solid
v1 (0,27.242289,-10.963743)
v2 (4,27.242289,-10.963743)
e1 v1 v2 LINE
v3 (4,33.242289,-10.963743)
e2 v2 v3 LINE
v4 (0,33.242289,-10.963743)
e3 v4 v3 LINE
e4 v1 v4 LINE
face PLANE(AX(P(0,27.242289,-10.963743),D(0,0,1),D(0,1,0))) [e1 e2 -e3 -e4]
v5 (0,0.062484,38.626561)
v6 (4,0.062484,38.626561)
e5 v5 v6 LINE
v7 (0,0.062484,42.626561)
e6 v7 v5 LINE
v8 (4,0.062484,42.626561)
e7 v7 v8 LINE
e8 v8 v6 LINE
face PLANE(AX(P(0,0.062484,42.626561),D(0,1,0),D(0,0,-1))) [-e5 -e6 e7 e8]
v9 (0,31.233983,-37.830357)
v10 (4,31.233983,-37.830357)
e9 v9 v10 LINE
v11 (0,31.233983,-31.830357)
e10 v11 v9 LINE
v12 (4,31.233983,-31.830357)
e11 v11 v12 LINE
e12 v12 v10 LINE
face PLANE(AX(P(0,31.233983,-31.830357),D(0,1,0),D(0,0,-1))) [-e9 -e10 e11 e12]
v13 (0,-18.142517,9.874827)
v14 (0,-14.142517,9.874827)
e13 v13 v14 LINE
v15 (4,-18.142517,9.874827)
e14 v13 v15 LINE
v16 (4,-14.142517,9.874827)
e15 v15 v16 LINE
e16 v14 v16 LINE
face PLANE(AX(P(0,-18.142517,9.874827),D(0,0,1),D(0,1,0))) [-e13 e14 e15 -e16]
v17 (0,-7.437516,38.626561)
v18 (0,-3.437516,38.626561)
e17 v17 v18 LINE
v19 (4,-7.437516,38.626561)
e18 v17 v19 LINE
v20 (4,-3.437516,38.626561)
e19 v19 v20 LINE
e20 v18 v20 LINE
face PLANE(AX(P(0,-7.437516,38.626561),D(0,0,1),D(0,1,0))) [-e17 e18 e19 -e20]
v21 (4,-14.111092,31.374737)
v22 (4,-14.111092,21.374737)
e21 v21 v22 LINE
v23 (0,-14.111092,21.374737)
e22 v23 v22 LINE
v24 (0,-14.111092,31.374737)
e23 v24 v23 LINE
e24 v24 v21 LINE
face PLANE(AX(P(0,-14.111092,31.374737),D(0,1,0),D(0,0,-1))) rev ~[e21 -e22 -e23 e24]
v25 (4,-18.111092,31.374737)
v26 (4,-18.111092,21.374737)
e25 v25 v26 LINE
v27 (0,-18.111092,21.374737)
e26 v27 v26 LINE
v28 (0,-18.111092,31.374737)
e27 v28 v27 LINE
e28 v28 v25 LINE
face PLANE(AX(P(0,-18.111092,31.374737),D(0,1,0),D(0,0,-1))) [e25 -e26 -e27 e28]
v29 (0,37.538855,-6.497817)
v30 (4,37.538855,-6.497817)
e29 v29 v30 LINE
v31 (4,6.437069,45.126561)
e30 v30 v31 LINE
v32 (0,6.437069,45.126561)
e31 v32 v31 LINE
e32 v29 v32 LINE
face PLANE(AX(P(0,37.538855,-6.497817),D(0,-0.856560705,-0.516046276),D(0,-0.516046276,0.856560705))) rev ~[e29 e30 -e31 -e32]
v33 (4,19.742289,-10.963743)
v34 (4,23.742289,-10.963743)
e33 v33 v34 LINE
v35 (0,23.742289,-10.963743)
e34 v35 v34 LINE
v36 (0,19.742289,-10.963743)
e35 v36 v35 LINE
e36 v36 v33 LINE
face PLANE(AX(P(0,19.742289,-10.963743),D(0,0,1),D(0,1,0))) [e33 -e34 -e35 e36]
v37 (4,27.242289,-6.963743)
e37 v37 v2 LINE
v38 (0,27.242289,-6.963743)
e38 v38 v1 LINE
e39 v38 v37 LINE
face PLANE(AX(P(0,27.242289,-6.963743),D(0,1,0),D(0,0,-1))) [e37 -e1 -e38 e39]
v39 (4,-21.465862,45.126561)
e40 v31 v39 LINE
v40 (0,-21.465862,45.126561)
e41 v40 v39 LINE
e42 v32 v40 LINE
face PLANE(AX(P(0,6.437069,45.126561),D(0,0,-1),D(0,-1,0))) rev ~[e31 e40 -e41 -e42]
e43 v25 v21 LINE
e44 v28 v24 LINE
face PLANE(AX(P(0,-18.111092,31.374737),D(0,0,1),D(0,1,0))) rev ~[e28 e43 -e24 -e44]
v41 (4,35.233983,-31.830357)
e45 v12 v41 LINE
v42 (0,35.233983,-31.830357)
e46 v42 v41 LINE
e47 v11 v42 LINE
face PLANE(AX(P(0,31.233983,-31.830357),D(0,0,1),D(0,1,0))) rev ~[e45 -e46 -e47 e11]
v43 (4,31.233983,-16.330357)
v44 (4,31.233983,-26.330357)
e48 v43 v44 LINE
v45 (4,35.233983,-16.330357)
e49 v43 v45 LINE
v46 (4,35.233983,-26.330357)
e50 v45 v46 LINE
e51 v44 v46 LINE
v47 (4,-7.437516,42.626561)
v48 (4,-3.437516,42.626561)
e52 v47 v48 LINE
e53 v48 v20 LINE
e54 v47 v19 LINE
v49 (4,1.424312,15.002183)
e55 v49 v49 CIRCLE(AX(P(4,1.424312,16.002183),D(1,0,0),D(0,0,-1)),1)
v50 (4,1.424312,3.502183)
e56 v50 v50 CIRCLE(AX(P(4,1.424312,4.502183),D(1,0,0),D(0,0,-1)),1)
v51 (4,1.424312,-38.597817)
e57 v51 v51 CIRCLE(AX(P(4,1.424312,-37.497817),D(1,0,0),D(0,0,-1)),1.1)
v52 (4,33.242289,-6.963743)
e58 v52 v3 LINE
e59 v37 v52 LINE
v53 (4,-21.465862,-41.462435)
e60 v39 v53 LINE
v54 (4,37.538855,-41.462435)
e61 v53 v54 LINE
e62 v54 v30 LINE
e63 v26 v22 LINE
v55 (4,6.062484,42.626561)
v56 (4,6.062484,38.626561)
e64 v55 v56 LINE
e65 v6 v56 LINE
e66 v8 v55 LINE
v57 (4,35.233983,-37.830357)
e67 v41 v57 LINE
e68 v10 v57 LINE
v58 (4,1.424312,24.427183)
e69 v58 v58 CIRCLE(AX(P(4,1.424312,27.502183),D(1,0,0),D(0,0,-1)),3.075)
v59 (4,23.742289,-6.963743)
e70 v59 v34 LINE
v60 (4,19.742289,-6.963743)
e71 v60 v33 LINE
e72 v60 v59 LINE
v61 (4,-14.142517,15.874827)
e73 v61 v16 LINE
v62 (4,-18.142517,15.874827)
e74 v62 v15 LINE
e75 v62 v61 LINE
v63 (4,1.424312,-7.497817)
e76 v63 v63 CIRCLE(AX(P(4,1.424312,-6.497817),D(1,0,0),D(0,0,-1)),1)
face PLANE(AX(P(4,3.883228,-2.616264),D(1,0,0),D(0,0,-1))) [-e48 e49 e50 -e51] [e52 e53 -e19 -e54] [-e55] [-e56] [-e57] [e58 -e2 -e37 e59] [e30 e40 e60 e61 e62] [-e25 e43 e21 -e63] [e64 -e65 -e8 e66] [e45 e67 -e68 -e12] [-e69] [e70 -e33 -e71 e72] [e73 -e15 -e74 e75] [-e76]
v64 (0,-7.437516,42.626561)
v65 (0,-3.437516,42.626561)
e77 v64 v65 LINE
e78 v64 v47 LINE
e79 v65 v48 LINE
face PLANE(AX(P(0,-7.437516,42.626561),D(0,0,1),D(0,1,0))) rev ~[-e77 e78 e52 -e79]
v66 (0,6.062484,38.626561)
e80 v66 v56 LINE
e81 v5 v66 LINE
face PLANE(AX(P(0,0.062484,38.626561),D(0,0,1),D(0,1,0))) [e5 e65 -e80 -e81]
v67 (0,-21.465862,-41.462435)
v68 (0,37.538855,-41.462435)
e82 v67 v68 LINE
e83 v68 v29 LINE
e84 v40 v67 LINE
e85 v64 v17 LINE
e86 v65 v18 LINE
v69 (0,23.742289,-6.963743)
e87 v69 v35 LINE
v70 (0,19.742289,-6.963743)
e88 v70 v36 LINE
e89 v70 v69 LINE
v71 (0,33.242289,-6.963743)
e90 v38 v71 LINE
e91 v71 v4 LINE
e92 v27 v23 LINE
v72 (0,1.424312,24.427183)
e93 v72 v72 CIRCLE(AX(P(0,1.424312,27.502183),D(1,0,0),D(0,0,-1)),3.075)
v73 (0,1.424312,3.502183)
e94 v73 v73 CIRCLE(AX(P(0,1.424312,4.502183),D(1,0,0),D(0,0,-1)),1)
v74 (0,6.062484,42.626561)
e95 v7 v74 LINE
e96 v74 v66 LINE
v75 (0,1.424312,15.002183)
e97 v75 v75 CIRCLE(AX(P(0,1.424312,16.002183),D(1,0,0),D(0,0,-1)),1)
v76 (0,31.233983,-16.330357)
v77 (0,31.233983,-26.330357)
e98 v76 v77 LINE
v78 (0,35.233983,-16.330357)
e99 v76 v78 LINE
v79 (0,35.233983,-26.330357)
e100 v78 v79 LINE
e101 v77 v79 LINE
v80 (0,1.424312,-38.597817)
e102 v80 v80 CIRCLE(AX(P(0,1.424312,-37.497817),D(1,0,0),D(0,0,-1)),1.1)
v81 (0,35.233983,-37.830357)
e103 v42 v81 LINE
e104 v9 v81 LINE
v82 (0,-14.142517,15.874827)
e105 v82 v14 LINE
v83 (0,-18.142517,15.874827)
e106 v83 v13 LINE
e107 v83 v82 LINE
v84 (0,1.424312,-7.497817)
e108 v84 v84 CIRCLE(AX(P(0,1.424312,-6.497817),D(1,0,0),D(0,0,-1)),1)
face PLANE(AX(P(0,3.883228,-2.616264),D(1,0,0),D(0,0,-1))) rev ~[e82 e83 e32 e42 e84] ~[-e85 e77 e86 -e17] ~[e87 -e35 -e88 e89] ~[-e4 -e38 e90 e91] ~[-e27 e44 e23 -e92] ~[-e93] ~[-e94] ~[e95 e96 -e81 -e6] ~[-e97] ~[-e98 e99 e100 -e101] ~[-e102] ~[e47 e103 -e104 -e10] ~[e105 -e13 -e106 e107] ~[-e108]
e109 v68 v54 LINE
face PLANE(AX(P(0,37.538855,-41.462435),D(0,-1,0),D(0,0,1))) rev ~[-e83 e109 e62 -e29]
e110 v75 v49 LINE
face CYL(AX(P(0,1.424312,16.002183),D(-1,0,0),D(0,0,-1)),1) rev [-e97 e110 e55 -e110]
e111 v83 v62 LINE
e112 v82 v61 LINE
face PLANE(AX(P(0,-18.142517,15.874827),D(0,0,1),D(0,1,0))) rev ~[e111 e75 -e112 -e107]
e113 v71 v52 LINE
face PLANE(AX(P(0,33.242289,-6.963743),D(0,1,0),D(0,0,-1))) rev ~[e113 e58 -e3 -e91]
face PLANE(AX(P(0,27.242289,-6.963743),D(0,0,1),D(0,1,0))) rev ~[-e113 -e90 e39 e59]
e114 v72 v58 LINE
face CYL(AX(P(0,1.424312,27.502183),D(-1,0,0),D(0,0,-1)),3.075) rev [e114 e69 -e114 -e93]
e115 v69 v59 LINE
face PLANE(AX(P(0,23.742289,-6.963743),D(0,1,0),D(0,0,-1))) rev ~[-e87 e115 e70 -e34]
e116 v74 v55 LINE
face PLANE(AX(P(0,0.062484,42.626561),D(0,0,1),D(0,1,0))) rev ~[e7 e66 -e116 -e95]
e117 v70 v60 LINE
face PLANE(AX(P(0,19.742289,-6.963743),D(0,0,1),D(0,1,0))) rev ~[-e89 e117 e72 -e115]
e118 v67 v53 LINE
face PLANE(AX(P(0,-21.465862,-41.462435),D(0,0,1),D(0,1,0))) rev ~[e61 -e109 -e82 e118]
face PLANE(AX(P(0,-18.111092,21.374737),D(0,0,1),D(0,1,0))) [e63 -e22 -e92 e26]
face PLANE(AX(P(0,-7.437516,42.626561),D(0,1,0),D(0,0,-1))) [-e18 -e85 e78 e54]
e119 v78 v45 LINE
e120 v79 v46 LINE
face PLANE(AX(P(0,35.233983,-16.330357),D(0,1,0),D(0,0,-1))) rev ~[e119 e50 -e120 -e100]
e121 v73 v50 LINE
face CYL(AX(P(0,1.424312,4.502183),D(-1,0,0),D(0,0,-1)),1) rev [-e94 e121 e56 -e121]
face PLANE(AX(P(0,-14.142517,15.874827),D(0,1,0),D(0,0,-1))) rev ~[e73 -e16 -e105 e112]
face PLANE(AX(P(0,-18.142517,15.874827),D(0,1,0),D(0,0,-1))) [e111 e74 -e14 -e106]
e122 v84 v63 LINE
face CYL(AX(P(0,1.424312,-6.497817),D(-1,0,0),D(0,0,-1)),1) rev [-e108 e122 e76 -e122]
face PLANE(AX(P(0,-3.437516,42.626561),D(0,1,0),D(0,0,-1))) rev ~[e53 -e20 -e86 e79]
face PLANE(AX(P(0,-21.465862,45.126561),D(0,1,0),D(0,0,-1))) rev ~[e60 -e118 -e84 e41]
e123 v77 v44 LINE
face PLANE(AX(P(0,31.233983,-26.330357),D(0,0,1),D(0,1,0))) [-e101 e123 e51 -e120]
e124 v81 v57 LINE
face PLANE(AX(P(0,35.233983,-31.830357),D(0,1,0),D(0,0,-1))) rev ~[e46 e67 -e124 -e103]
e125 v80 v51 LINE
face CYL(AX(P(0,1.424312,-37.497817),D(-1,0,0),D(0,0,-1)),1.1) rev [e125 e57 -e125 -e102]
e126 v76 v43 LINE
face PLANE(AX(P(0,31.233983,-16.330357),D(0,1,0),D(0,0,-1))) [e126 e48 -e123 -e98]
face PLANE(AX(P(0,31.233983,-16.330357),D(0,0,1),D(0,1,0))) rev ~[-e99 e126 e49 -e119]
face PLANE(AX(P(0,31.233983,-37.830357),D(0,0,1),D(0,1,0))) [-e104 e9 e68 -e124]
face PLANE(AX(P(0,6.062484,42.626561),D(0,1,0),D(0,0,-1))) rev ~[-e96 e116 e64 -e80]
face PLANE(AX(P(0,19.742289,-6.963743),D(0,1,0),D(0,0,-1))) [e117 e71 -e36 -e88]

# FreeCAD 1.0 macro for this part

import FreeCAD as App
import Part
import Sketcher
from FreeCAD import Vector
Q = App.Units.Quantity

doc = App.newDocument("Part")
body = doc.addObject("PartDesign::Body", "Body")

sketch1 = body.newObject("Sketcher::SketchObject", "Sketch")
sketch1.AttachmentSupport = (doc.getObject("YZ_Plane"), [""])
sketch1.MapMode = "FlatFace"
sketch1.addGeometry([
    Part.LineSegment(Vector(-21.5, 45.1, 0), Vector(-21.5, -41.5, 0)),
    Part.LineSegment(Vector(-21.5, -41.5, 0), Vector(37.5, -41.5, 0)),
    Part.LineSegment(Vector(37.5, -41.5, 0), Vector(37.5, -6.5, 0)),
    Part.LineSegment(Vector(37.5, -6.5, 0), Vector(6.4, 45.1, 0)),
    Part.LineSegment(Vector(6.4, 45.1, 0), Vector(-21.5, 45.1, 0)),
    Part.LineSegment(Vector(-18.1, 21.4, 0), Vector(-18.1, 31.4, 0)),
    Part.LineSegment(Vector(-18.1, 31.4, 0), Vector(-14.1, 31.4, 0)),
    Part.LineSegment(Vector(-14.1, 31.4, 0), Vector(-14.1, 21.4, 0)),
    Part.LineSegment(Vector(-14.1, 21.4, 0), Vector(-18.1, 21.4, 0)),
    Part.LineSegment(Vector(-7.4, 38.6, 0), Vector(-7.4, 42.6, 0)),
    Part.LineSegment(Vector(-7.4, 42.6, 0), Vector(-3.4, 42.6, 0)),
    Part.LineSegment(Vector(-3.4, 42.6, 0), Vector(-3.4, 38.6, 0)),
    Part.LineSegment(Vector(-3.4, 38.6, 0), Vector(-7.4, 38.6, 0)),
    Part.LineSegment(Vector(-18.1, 9.9, 0), Vector(-18.1, 15.9, 0)),
    Part.LineSegment(Vector(-18.1, 15.9, 0), Vector(-14.1, 15.9, 0)),
    Part.LineSegment(Vector(-14.1, 15.9, 0), Vector(-14.1, 9.9, 0)),
    Part.LineSegment(Vector(-14.1, 9.9, 0), Vector(-18.1, 9.9, 0)),
    Part.Circle(Vector(1.4, 27.5, 0), Vector(0, 0, 1), 3.1),
    Part.LineSegment(Vector(0.1, 38.6, 0), Vector(0.1, 42.6, 0)),
    Part.LineSegment(Vector(0.1, 42.6, 0), Vector(6.1, 42.6, 0)),
    Part.LineSegment(Vector(6.1, 42.6, 0), Vector(6.1, 38.6, 0)),
    Part.LineSegment(Vector(6.1, 38.6, 0), Vector(0.1, 38.6, 0)),
    Part.Circle(Vector(1.4, 16, 0), Vector(0, 0, 1), 1),
    Part.Circle(Vector(1.4, 4.5, 0), Vector(0, 0, 1), 1),
    Part.Circle(Vector(1.4, -6.5, 0), Vector(0, 0, 1), 1),
    Part.Circle(Vector(1.4, -37.5, 0), Vector(0, 0, 1), 1.1),
    Part.LineSegment(Vector(19.7, -11, 0), Vector(19.7, -7, 0)),
    Part.LineSegment(Vector(19.7, -7, 0), Vector(23.7, -7, 0)),
    Part.LineSegment(Vector(23.7, -7, 0), Vector(23.7, -11, 0)),
    Part.LineSegment(Vector(23.7, -11, 0), Vector(19.7, -11, 0)),
    Part.LineSegment(Vector(27.2, -11, 0), Vector(27.2, -7, 0)),
    Part.LineSegment(Vector(27.2, -7, 0), Vector(33.2, -7, 0)),
    Part.LineSegment(Vector(33.2, -7, 0), Vector(33.2, -11, 0)),
    Part.LineSegment(Vector(33.2, -11, 0), Vector(27.2, -11, 0)),
    Part.LineSegment(Vector(31.2, -26.3, 0), Vector(31.2, -16.3, 0)),
    Part.LineSegment(Vector(31.2, -16.3, 0), Vector(35.2, -16.3, 0)),
    Part.LineSegment(Vector(35.2, -16.3, 0), Vector(35.2, -26.3, 0)),
    Part.LineSegment(Vector(35.2, -26.3, 0), Vector(31.2, -26.3, 0)),
    Part.LineSegment(Vector(31.2, -37.8, 0), Vector(31.2, -31.8, 0)),
    Part.LineSegment(Vector(31.2, -31.8, 0), Vector(35.2, -31.8, 0)),
    Part.LineSegment(Vector(35.2, -31.8, 0), Vector(35.2, -37.8, 0)),
    Part.LineSegment(Vector(35.2, -37.8, 0), Vector(31.2, -37.8, 0)),
], False)
sketch1.addConstraint([
    Sketcher.Constraint("Coincident", 0, 2, 1, 1),
    Sketcher.Constraint("Coincident", 1, 2, 2, 1),
    Sketcher.Constraint("Coincident", 2, 2, 3, 1),
    Sketcher.Constraint("Coincident", 3, 2, 4, 1),
    Sketcher.Constraint("Coincident", 4, 2, 0, 1),
    Sketcher.Constraint("Coincident", 5, 2, 6, 1),
    Sketcher.Constraint("Coincident", 6, 2, 7, 1),
    Sketcher.Constraint("Coincident", 7, 2, 8, 1),
    Sketcher.Constraint("Coincident", 8, 2, 5, 1),
    Sketcher.Constraint("Coincident", 9, 2, 10, 1),
    Sketcher.Constraint("Coincident", 10, 2, 11, 1),
    Sketcher.Constraint("Coincident", 11, 2, 12, 1),
    Sketcher.Constraint("Coincident", 12, 2, 9, 1),
    Sketcher.Constraint("Coincident", 13, 2, 14, 1),
    Sketcher.Constraint("Coincident", 14, 2, 15, 1),
    Sketcher.Constraint("Coincident", 15, 2, 16, 1),
    Sketcher.Constraint("Coincident", 16, 2, 13, 1),
    Sketcher.Constraint("Coincident", 18, 2, 19, 1),
    Sketcher.Constraint("Coincident", 19, 2, 20, 1),
    Sketcher.Constraint("Coincident", 20, 2, 21, 1),
    Sketcher.Constraint("Coincident", 21, 2, 18, 1),
    Sketcher.Constraint("Coincident", 26, 2, 27, 1),
    Sketcher.Constraint("Coincident", 27, 2, 28, 1),
    Sketcher.Constraint("Coincident", 28, 2, 29, 1),
    Sketcher.Constraint("Coincident", 29, 2, 26, 1),
    Sketcher.Constraint("Coincident", 30, 2, 31, 1),
    Sketcher.Constraint("Coincident", 31, 2, 32, 1),
    Sketcher.Constraint("Coincident", 32, 2, 33, 1),
    Sketcher.Constraint("Coincident", 33, 2, 30, 1),
    Sketcher.Constraint("Coincident", 34, 2, 35, 1),
    Sketcher.Constraint("Coincident", 35, 2, 36, 1),
    Sketcher.Constraint("Coincident", 36, 2, 37, 1),
    Sketcher.Constraint("Coincident", 37, 2, 34, 1),
    Sketcher.Constraint("Coincident", 38, 2, 39, 1),
    Sketcher.Constraint("Coincident", 39, 2, 40, 1),
    Sketcher.Constraint("Coincident", 40, 2, 41, 1),
    Sketcher.Constraint("Coincident", 41, 2, 38, 1),
    Sketcher.Constraint("Vertical", 0),
    Sketcher.Constraint("Horizontal", 1),
    Sketcher.Constraint("Vertical", 2),
    Sketcher.Constraint("Horizontal", 4),
    Sketcher.Constraint("Vertical", 5),
    Sketcher.Constraint("Horizontal", 6),
    Sketcher.Constraint("Vertical", 7),
    Sketcher.Constraint("Horizontal", 8),
    Sketcher.Constraint("Vertical", 9),
    Sketcher.Constraint("Horizontal", 10),
    Sketcher.Constraint("Vertical", 11),
    Sketcher.Constraint("Horizontal", 12),
    Sketcher.Constraint("Vertical", 13),
    Sketcher.Constraint("Horizontal", 14),
    Sketcher.Constraint("Vertical", 15),
    Sketcher.Constraint("Horizontal", 16),
    Sketcher.Constraint("Vertical", 18),
    Sketcher.Constraint("Horizontal", 19),
    Sketcher.Constraint("Vertical", 20),
    Sketcher.Constraint("Horizontal", 21),
    Sketcher.Constraint("Vertical", 26),
    Sketcher.Constraint("Horizontal", 27),
    Sketcher.Constraint("Vertical", 28),
    Sketcher.Constraint("Horizontal", 29),
    Sketcher.Constraint("Vertical", 30),
    Sketcher.Constraint("Horizontal", 31),
    Sketcher.Constraint("Vertical", 32),
    Sketcher.Constraint("Horizontal", 33),
    Sketcher.Constraint("Vertical", 34),
    Sketcher.Constraint("Horizontal", 35),
    Sketcher.Constraint("Vertical", 36),
    Sketcher.Constraint("Horizontal", 37),
    Sketcher.Constraint("Vertical", 38),
    Sketcher.Constraint("Horizontal", 39),
    Sketcher.Constraint("Vertical", 40),
    Sketcher.Constraint("Horizontal", 41),
    Sketcher.Constraint("Equal", 22, 23),
    Sketcher.Constraint("Equal", 23, 24),
    Sketcher.Constraint("Horizontal", 24, 3, 2, 2),
    Sketcher.Constraint("Horizontal", 10, 2, 18, 2),
    Sketcher.Constraint("Horizontal", 12, 2, 20, 2),
    Sketcher.Constraint("Horizontal", 27, 2, 30, 2),
    Sketcher.Constraint("Horizontal", 29, 2, 32, 2),
    Sketcher.Constraint("Vertical", 17, 3, 22, 3),
    Sketcher.Constraint("Vertical", 22, 3, 23, 3),
    Sketcher.Constraint("Vertical", 23, 3, 24, 3),
    Sketcher.Constraint("Vertical", 24, 3, 25, 3),
    Sketcher.Constraint("Vertical", 37, 2, 38, 2),
    Sketcher.Constraint("Vertical", 36, 2, 39, 2),
    Sketcher.Constraint("Equal", 8, 10),
    Sketcher.Constraint("Equal", 12, 14),
    Sketcher.Constraint("Equal", 16, 27),
    Sketcher.Constraint("Equal", 21, 31),
    Sketcher.Constraint("Equal", 29, 35),
    Sketcher.Constraint("Equal", 41, 9),
    Sketcher.Constraint("Equal", 33, 13),
    Sketcher.Constraint("Equal", 20, 26),
    Sketcher.Constraint("Equal", 7, 34),
    Sketcher.Constraint("Equal", 15, 38),
    Sketcher.Constraint("Diameter", 22, Q("2 mm")),
    Sketcher.Constraint("Diameter", 25, Q("2.2 mm")),
    Sketcher.Constraint("Diameter", 17, Q("6.15 mm")),
    Sketcher.Constraint("DistanceX", 6, 1, 6, 2, Q("4 mm")),
    Sketcher.Constraint("DistanceX", 19, 1, 19, 2, Q("6 mm")),
    Sketcher.Constraint("DistanceY", 5, 1, 5, 2, Q("10 mm")),
    Sketcher.Constraint("DistanceY", 23, 3, 17, 3, Q("23 mm")),
    Sketcher.Constraint("DistanceY", 24, 3, 23, 3, Q("11 mm")),
    Sketcher.Constraint("DistanceY", 25, 3, 24, 3, Q("31 mm")),
    Sketcher.Constraint("DistanceY", 22, 3, 17, 3, Q("11.5 mm")),
    Sketcher.Constraint("DistanceY", 9, 2, 3, 2, Q("2.5 mm")),
    Sketcher.Constraint("DistanceX", 10, 2, 18, 2, Q("3.5 mm")),
    Sketcher.Constraint("DistanceX", 27, 2, 30, 2, Q("3.5 mm")),
    Sketcher.Constraint("DistanceY", 38, 2, 37, 2, Q("5.5 mm")),
    Sketcher.Constraint("DistanceX", 4, 2, 4, 1, Q("27.902931 mm")),
    Sketcher.Constraint("DistanceY", 2, 1, 2, 2, Q("34.964618 mm")),
    Sketcher.Constraint("DistanceX", 1, 1, 1, 2, Q("59.004717 mm")),
    Sketcher.Constraint("DistanceY", 0, 2, 0, 1, Q("86.588996 mm")),
    Sketcher.Constraint("DistanceX", -1, 1, 17, 3, Q("1.424312 mm")),
    Sketcher.Constraint("DistanceX", -1, 1, 3, 2, Q("6.437069 mm")),
    Sketcher.Constraint("DistanceY", -1, 1, 3, 2, Q("45.126561 mm")),
    Sketcher.Constraint("DistanceX", 5, 2, -1, 1, Q("18.111092 mm")),
    Sketcher.Constraint("DistanceX", -1, 1, 26, 2, Q("19.742289 mm")),
    Sketcher.Constraint("DistanceY", 13, 2, 8, 2, Q("5.49991 mm")),
    Sketcher.Constraint("DistanceX", 13, 2, 22, 3, Q("19.566829 mm")),
    Sketcher.Constraint("DistanceX", 35, 2, 2, 2, Q("2.304872 mm")),
    Sketcher.Constraint("DistanceY", 35, 2, 2, 2, Q("9.83254 mm")),
    Sketcher.Constraint("DistanceY", -1, 1, 5, 2, Q("31.374737 mm")),
    Sketcher.Constraint("DistanceX", 9, 2, -1, 1, Q("7.437516 mm")),
    Sketcher.Constraint("DistanceY", 26, 2, -1, 1, Q("6.963743 mm")),
])
pad1 = body.newObject("PartDesign::Pad", "Pad")
pad1.Profile = sketch1
pad1.Length = 4

doc.recompute()
